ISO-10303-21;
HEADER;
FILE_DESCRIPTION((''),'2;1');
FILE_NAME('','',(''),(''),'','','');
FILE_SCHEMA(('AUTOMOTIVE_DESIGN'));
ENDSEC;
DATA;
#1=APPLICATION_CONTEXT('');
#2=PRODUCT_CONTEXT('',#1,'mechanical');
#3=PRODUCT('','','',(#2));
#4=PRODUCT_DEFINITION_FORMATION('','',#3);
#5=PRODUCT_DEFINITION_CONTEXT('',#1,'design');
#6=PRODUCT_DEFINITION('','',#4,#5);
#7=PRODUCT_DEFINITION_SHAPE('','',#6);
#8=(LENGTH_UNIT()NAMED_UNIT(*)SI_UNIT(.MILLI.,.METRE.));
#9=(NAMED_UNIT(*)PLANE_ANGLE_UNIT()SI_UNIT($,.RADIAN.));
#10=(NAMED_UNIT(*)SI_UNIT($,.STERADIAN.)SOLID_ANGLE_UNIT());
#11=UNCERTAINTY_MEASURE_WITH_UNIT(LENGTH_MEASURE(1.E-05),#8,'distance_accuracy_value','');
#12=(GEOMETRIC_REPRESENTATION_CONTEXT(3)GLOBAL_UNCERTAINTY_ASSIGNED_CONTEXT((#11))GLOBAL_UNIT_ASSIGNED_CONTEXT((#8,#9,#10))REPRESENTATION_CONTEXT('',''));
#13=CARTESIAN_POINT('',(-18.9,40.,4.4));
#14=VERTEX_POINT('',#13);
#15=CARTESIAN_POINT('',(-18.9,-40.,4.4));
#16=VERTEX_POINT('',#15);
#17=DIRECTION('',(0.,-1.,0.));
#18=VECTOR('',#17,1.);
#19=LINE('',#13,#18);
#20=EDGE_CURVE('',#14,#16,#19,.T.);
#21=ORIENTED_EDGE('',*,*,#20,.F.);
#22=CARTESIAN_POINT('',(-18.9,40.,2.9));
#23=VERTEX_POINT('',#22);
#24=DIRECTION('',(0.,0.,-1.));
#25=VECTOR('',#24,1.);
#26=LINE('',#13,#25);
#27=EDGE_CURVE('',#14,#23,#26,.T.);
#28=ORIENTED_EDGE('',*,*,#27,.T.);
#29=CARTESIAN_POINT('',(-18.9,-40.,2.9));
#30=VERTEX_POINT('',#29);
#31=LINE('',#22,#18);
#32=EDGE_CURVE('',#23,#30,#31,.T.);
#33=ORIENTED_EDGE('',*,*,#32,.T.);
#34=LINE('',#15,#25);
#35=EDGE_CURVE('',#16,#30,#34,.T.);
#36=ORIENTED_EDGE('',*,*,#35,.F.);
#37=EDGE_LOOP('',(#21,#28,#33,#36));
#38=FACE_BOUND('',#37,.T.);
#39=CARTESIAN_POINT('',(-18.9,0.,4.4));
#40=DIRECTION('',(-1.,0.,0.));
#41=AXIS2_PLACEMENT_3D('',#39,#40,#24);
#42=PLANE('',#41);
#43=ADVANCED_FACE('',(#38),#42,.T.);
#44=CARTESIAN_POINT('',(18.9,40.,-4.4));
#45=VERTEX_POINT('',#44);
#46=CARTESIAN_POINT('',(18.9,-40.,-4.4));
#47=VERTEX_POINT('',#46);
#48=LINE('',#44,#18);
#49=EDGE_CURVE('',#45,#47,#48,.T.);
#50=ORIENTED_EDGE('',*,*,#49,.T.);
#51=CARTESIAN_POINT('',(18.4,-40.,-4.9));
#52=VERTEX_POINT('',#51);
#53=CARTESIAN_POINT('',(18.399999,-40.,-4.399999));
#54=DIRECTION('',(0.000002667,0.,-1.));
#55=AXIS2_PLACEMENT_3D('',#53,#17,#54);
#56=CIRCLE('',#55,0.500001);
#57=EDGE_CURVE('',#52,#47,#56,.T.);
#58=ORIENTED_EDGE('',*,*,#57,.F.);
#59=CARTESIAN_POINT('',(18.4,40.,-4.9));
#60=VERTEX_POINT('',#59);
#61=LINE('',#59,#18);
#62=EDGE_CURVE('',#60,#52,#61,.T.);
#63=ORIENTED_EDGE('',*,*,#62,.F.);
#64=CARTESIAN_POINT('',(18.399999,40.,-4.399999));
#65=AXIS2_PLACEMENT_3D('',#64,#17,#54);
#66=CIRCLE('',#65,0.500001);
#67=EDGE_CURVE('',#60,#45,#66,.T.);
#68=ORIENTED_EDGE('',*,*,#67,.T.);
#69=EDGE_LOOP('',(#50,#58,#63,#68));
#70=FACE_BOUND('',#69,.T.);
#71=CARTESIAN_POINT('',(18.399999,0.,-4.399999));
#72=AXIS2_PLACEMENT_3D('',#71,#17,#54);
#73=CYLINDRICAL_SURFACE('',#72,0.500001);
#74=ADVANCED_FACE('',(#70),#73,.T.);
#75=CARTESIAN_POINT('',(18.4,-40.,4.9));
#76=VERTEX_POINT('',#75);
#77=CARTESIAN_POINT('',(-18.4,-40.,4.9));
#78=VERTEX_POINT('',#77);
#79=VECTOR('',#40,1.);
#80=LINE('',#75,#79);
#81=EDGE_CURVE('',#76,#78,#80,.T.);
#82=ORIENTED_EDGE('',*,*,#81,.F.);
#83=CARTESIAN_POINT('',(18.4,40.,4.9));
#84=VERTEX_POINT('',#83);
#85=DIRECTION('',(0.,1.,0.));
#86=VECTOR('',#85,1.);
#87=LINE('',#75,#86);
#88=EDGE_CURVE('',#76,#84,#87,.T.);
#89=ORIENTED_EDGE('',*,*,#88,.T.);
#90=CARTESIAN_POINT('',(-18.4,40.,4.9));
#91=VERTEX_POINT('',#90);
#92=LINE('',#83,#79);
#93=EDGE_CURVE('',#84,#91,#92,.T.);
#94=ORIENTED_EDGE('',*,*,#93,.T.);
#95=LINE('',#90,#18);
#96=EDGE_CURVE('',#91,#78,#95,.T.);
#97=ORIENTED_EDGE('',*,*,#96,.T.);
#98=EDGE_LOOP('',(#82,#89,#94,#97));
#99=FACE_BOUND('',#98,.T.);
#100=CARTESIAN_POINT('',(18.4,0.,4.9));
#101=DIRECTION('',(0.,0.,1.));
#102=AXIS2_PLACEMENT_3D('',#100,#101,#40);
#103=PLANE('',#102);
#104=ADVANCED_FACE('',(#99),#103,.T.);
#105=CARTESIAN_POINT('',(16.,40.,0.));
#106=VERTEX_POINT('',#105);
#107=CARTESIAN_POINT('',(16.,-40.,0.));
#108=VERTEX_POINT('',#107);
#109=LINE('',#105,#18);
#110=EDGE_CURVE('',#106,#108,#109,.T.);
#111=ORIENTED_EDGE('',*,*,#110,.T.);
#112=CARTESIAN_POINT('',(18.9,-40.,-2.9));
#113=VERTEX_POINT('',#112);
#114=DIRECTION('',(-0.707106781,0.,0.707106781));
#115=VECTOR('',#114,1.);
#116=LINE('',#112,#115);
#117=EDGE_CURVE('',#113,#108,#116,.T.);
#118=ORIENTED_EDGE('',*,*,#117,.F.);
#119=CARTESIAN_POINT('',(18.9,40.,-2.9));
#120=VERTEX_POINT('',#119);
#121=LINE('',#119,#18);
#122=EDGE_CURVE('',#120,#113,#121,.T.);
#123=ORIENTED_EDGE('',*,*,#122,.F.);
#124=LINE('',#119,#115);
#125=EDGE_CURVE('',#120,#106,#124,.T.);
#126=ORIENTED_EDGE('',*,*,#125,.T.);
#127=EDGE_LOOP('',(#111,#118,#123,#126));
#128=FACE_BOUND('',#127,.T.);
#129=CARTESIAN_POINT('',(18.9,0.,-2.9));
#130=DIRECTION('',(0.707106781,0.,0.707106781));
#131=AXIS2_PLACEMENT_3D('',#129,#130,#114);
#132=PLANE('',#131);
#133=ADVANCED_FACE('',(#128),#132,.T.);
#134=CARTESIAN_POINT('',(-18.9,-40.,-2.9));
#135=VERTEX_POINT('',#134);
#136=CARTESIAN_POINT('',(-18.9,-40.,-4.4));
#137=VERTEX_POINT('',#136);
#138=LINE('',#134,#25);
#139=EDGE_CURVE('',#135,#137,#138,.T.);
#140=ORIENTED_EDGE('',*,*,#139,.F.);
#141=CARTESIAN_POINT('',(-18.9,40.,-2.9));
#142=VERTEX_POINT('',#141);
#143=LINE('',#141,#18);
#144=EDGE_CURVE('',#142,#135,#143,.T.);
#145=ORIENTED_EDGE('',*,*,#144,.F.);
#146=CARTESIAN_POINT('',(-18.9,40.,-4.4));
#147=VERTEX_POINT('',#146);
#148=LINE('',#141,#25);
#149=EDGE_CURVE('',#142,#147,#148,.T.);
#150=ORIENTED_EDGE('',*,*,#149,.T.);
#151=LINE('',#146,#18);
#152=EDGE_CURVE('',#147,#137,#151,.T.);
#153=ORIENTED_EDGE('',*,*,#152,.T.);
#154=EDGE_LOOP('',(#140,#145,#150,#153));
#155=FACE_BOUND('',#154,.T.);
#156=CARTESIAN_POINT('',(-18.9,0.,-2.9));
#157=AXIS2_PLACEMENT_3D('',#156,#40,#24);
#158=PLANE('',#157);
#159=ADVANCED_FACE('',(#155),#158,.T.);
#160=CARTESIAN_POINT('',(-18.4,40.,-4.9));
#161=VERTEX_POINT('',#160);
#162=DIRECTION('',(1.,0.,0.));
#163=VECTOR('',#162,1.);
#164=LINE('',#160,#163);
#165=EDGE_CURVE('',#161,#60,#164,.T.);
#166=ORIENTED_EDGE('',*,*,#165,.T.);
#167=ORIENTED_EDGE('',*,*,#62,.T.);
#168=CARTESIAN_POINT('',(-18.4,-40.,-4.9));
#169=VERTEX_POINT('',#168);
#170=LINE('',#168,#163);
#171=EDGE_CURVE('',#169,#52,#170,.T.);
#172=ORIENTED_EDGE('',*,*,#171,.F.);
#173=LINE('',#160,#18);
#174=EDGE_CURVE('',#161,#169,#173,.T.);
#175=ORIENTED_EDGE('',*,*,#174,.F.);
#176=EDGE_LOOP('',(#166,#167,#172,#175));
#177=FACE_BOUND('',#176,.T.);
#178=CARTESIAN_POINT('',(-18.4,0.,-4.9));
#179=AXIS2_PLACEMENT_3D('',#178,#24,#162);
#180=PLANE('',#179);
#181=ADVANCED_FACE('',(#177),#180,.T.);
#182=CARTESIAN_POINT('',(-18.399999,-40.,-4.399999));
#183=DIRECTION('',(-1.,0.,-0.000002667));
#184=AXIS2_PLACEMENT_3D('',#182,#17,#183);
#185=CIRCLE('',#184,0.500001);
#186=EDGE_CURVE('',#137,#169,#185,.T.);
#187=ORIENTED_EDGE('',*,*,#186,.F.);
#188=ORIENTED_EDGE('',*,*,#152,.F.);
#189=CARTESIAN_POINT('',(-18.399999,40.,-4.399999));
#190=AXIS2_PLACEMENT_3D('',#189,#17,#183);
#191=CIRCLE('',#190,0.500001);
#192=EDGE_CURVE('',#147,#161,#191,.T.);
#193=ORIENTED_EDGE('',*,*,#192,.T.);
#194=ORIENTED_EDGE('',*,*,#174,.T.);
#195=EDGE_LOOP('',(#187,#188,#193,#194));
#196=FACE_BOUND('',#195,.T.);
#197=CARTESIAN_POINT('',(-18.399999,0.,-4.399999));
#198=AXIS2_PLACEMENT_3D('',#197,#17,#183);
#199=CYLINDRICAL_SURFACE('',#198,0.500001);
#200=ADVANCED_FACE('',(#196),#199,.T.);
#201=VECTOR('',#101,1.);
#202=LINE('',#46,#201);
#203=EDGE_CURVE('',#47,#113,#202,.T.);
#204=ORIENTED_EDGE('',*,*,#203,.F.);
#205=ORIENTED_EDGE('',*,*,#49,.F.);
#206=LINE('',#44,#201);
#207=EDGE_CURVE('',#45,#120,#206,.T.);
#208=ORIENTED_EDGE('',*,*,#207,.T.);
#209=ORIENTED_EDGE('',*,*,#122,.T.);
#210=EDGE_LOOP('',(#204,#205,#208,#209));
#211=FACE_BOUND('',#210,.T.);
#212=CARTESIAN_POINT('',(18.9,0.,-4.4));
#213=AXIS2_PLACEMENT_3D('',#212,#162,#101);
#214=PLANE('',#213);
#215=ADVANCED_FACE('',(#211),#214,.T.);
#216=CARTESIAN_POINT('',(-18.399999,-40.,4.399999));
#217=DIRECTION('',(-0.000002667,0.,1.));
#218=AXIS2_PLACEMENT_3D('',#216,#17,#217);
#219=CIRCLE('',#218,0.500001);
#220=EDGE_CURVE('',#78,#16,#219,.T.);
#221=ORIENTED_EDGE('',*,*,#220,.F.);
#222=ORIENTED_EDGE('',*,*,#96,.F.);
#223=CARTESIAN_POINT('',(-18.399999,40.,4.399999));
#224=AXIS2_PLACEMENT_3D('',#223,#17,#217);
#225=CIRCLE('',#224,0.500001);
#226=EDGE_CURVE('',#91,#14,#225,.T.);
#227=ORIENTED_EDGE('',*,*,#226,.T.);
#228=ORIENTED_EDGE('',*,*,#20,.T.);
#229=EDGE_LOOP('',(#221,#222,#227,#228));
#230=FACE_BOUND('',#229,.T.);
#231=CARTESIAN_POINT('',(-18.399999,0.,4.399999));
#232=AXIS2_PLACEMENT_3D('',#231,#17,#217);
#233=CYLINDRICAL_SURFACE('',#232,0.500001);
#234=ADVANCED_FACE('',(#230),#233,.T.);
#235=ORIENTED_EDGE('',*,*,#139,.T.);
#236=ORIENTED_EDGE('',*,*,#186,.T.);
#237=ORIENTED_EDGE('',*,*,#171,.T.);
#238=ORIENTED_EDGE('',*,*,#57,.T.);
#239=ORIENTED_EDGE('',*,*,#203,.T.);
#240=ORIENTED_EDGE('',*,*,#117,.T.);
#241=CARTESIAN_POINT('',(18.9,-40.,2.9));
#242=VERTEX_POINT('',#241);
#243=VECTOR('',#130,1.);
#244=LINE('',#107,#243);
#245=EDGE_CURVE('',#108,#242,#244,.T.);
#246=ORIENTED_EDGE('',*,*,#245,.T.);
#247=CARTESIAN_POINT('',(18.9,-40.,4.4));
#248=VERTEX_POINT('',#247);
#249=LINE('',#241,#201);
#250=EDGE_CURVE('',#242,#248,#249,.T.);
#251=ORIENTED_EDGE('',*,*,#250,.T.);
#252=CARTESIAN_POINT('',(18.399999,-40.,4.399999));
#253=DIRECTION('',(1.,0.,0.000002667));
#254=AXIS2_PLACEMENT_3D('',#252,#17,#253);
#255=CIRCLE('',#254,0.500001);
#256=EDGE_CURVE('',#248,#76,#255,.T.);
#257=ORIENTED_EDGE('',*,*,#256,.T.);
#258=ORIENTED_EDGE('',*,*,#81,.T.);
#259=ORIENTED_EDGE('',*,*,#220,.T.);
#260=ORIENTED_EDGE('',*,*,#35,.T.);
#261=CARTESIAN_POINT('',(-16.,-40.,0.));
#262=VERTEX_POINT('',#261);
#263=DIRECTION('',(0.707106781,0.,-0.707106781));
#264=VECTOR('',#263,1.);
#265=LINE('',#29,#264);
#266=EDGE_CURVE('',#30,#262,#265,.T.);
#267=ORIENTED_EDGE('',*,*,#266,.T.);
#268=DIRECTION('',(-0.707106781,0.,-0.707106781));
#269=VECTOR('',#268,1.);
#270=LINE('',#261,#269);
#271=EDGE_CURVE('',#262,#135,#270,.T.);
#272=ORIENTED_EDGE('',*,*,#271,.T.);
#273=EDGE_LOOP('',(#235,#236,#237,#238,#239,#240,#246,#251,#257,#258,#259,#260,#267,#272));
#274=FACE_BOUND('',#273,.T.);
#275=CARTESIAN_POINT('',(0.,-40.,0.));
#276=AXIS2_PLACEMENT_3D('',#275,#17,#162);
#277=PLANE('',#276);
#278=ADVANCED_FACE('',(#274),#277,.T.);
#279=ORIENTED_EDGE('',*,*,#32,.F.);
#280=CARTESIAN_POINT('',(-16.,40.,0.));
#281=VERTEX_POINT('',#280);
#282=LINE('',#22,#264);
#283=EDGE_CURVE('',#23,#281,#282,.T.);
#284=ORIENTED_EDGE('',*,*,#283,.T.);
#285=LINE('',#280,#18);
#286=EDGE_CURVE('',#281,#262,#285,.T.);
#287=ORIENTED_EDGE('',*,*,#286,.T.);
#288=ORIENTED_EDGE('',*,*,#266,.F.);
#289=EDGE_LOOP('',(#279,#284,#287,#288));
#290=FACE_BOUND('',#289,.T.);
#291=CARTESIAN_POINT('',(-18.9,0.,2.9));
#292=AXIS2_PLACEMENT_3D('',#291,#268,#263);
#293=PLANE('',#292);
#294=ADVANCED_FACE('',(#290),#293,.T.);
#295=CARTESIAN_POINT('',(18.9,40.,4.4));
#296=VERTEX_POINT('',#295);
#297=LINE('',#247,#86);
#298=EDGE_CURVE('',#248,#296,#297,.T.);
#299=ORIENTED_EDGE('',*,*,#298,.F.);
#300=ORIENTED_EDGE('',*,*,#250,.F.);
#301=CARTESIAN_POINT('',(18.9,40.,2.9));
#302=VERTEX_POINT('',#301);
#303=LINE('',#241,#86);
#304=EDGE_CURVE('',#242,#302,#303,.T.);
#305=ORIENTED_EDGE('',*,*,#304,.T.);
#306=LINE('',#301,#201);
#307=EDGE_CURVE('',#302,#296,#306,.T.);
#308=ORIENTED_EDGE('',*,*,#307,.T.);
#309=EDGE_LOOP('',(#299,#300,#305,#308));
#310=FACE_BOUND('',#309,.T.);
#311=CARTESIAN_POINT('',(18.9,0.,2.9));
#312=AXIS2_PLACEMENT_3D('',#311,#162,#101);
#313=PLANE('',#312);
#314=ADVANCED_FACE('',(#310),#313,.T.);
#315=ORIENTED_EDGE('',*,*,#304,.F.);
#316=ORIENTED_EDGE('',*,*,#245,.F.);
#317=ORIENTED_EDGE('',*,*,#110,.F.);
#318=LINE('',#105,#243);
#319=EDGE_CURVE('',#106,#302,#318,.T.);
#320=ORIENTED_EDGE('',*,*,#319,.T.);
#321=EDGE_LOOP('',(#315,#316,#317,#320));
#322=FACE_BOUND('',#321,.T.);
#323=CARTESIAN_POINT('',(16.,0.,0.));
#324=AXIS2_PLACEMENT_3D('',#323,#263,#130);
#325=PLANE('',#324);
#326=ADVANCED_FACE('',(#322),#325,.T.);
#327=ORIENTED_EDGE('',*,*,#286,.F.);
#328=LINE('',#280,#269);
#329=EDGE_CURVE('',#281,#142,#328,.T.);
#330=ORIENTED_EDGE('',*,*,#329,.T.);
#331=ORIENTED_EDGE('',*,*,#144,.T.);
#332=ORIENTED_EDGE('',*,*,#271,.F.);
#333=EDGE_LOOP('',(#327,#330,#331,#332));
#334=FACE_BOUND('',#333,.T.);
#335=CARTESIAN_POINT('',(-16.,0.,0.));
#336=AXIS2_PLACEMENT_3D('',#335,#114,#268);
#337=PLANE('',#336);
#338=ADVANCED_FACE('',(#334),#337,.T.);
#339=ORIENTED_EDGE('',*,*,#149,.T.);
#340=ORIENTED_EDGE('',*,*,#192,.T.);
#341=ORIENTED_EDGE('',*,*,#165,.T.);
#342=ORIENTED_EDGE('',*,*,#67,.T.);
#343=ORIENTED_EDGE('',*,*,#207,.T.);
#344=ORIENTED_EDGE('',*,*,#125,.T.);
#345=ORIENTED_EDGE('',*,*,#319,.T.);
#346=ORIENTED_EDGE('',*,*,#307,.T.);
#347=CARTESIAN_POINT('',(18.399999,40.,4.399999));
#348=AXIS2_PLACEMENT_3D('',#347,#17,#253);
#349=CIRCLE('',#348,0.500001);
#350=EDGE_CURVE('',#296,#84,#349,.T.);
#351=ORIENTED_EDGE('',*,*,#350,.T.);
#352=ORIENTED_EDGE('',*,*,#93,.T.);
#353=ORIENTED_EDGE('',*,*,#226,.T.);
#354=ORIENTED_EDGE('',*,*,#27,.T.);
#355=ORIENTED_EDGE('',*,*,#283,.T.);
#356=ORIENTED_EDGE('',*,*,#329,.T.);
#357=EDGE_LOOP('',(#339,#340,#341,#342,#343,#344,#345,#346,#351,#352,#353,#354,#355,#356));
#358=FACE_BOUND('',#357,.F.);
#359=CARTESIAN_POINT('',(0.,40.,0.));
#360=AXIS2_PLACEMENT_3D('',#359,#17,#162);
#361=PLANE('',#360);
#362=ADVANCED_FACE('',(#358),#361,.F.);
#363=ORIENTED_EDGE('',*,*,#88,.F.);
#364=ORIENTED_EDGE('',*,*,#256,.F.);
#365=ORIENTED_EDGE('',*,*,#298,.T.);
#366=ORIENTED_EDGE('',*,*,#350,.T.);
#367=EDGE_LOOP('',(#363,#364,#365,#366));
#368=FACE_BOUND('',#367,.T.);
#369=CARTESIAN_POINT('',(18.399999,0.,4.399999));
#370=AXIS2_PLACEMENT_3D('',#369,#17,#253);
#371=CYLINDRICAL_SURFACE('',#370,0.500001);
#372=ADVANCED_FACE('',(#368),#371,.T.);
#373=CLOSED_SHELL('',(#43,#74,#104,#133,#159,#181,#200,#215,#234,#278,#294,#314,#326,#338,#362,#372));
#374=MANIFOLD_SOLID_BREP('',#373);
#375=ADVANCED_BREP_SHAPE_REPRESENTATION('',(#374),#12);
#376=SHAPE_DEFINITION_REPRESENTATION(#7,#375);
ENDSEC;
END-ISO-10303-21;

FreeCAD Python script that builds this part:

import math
import FreeCAD as App
import Part
import Sketcher

doc = App.newDocument("Part")
body = doc.addObject("PartDesign::Body", "Body")

sketch1 = doc.addObject("Sketcher::SketchObject", "Sketch")
body.addObject(sketch1)
sketch1.AttachmentSupport = (doc.XZ_Plane, [""])
sketch1.MapMode = "FlatFace"
sketch1.addGeometry([
    Part.LineSegment(App.Vector(18.4, 4.9, 0), App.Vector(-18.4, 4.9, 0)),
    Part.ArcOfCircle(Part.Circle(App.Vector(-18.4, 4.4, 0), App.Vector(0, 0, 1), 0.5), math.radians(90), math.radians(180)),
    Part.LineSegment(App.Vector(-18.9, 4.4, 0), App.Vector(-18.9, 2.9, 0)),
    Part.LineSegment(App.Vector(-18.9, 2.9, 0), App.Vector(-16, 0, 0)),
    Part.LineSegment(App.Vector(-16, 0, 0), App.Vector(-18.9, -2.9, 0)),
    Part.LineSegment(App.Vector(-18.9, -2.9, 0), App.Vector(-18.9, -4.4, 0)),
    Part.ArcOfCircle(Part.Circle(App.Vector(-18.4, -4.4, 0), App.Vector(0, 0, 1), 0.5), math.radians(-180), math.radians(-90)),
    Part.LineSegment(App.Vector(-18.4, -4.9, 0), App.Vector(18.4, -4.9, 0)),
    Part.ArcOfCircle(Part.Circle(App.Vector(18.4, -4.4, 0), App.Vector(0, 0, 1), 0.5), math.radians(-90), math.radians(0)),
    Part.LineSegment(App.Vector(18.9, -4.4, 0), App.Vector(18.9, -2.9, 0)),
    Part.LineSegment(App.Vector(18.9, -2.9, 0), App.Vector(16, 0, 0)),
    Part.LineSegment(App.Vector(16, 0, 0), App.Vector(18.9, 2.9, 0)),
    Part.LineSegment(App.Vector(18.9, 2.9, 0), App.Vector(18.9, 4.4, 0)),
    Part.ArcOfCircle(Part.Circle(App.Vector(18.4, 4.4, 0), App.Vector(0, 0, 1), 0.5), math.radians(0), math.radians(90)),
], False)
sketch1.addConstraint([
    Sketcher.Constraint("Coincident", 0, 2, 1, 1),
    Sketcher.Constraint("Coincident", 1, 2, 2, 1),
    Sketcher.Constraint("Coincident", 2, 2, 3, 1),
    Sketcher.Constraint("Coincident", 3, 2, 4, 1),
    Sketcher.Constraint("Coincident", 4, 2, 5, 1),
    Sketcher.Constraint("Coincident", 5, 2, 6, 1),
    Sketcher.Constraint("Coincident", 6, 2, 7, 1),
    Sketcher.Constraint("Coincident", 7, 2, 8, 1),
    Sketcher.Constraint("Coincident", 8, 2, 9, 1),
    Sketcher.Constraint("Coincident", 9, 2, 10, 1),
    Sketcher.Constraint("Coincident", 10, 2, 11, 1),
    Sketcher.Constraint("Coincident", 11, 2, 12, 1),
    Sketcher.Constraint("Coincident", 12, 2, 13, 1),
    Sketcher.Constraint("Coincident", 13, 2, 0, 1),
    Sketcher.Constraint("Horizontal", 0),
    Sketcher.Constraint("Vertical", 2),
    Sketcher.Constraint("Vertical", 5),
    Sketcher.Constraint("Horizontal", 7),
    Sketcher.Constraint("Vertical", 9),
    Sketcher.Constraint("Vertical", 12),
    Sketcher.Constraint("Equal", 1, 6),
    Sketcher.Constraint("Equal", 6, 8),
    Sketcher.Constraint("Equal", 8, 13),
    Sketcher.Constraint("Symmetric", 1, 3, 8, 3, -1, 1),
    Sketcher.Constraint("Symmetric", 3, 2, 10, 2, -1, 1),
    Sketcher.Constraint("Symmetric", 4, 2, 11, 2, -1, 1),
    Sketcher.Constraint("Symmetric", 5, 2, 8, 2, -2),
    Sketcher.Constraint("PointOnObject", 3, 2, -1),
    Sketcher.Constraint("Perpendicular", 3, 4),
    Sketcher.Constraint("Perpendicular", 4, 10),
    Sketcher.Constraint("Horizontal", 13, 3, 1, 2),
    Sketcher.Constraint("Horizontal", 8, 3, 5, 2),
    Sketcher.Constraint("Horizontal", 4, 2, 9, 2),
    Sketcher.Constraint("Horizontal", 1, 2, 12, 2),
    Sketcher.Constraint("Vertical", 6, 3, 0, 2),
    Sketcher.Constraint("Vertical", 0, 2, 6, 2),
    Sketcher.Constraint("Vertical", 13, 3, 7, 2),
    Sketcher.Constraint("Vertical", 7, 2, 13, 2),
    Sketcher.Constraint("Radius", 1, 0.500001),
    Sketcher.Constraint("DistanceX", 0, 2, 0, 1, 36.8),
    Sketcher.Constraint("DistanceY", 2, 2, 2, 1, 1.5),
    Sketcher.Constraint("DistanceX", 3, 2, -1, 1, 16.0),
])
pad1 = doc.addObject("PartDesign::Pad", "Pad")
body.addObject(pad1)
pad1.Profile = sketch1
pad1.Type = "TwoLengths"
pad1.Length = 40
pad1.Length2 = 40

doc.recompute()
